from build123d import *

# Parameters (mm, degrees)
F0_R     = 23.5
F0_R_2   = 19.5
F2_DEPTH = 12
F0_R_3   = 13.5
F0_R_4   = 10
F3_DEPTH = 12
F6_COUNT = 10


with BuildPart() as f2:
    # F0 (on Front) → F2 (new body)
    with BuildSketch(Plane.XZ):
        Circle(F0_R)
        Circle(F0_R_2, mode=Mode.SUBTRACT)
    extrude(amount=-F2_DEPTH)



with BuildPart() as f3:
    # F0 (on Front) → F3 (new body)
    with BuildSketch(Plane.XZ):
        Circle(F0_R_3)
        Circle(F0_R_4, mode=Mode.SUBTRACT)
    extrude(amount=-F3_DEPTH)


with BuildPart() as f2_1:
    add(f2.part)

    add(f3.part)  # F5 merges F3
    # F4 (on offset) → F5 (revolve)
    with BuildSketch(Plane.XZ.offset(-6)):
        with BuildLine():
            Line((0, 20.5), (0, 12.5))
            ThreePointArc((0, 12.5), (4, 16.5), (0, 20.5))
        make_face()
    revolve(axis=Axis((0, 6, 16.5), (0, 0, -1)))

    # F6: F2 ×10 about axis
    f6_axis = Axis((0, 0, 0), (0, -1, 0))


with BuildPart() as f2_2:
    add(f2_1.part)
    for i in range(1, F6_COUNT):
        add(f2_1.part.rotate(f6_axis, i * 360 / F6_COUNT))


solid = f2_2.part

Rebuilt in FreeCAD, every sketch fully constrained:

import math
import FreeCAD as App
import Part
import Sketcher

doc = App.newDocument("Part")
params = doc.addObject("Spreadsheet::Sheet", "Params")
for row, (alias, value) in enumerate([
    ("sketch1_diameter", "47 mm"),
    ("sketch1_diameter2", "39 mm"),
    ("pad1_length", "12 mm"),
    ("sketch2_diameter", "27 mm"),
    ("sketch2_diameter2", "20 mm"),
    ("pad2_length", "12 mm"),
    ("sketch3_radius", "4 mm"),
    ("revolution_angle", "360 deg"),
], start=1):
    params.set(f"A{row}", alias)
    params.set(f"B{row}", "=" + value)
    params.setAlias(f"B{row}", alias)

body = doc.addObject("PartDesign::Body", "Body")

# Sketch on XZ plane
sketch1 = body.newObject("Sketcher::SketchObject", "Sketch")
sketch1.AttachmentSupport = (doc.getObject("XZ_Plane"), [""])
sketch1.MapMode = "FlatFace"
sketch1.addGeometry([
    Part.Circle(App.Vector(0, 0, 0), App.Vector(0, 0, 1), 24),
    Part.Circle(App.Vector(0, 0, 0), App.Vector(0, 0, 1), 20),
], False)
sketch1.addConstraint([
    Sketcher.Constraint("Coincident", 0, 3, -1, 1),
    Sketcher.Constraint("Coincident", 1, 3, -1, 1),
    Sketcher.Constraint("Diameter", 0, 47.0),
    Sketcher.Constraint("Diameter", 1, 39.0),
])
sketch1.setExpression("Constraints[2]", "Params.sketch1_diameter")
sketch1.setExpression("Constraints[3]", "Params.sketch1_diameter2")
pad1 = body.newObject("PartDesign::Pad", "Pad")
pad1.Profile = sketch1
pad1.setExpression("Length", "Params.pad1_length")
pad1.Reversed = True
body2 = doc.addObject("PartDesign::Body", "Body001")

# Sketch on XZ plane
sketch2 = body2.newObject("Sketcher::SketchObject", "Sketch001")
sketch2.AttachmentSupport = (doc.getObject("XZ_Plane001"), [""])
sketch2.MapMode = "FlatFace"
sketch2.addGeometry([
    Part.Circle(App.Vector(0, 0, 0), App.Vector(0, 0, 1), 14),
    Part.Circle(App.Vector(0, 0, 0), App.Vector(0, 0, 1), 10),
], False)
sketch2.addConstraint([
    Sketcher.Constraint("Coincident", 0, 3, -1, 1),
    Sketcher.Constraint("Coincident", 1, 3, -1, 1),
    Sketcher.Constraint("Diameter", 0, 27.0),
    Sketcher.Constraint("Diameter", 1, 20.0),
])
sketch2.setExpression("Constraints[2]", "Params.sketch2_diameter")
sketch2.setExpression("Constraints[3]", "Params.sketch2_diameter2")
pad2 = body2.newObject("PartDesign::Pad", "Pad001")
pad2.Profile = sketch2
pad2.setExpression("Length", "Params.pad2_length")
pad2.Reversed = True
body.AllowCompound = True
doc.recompute()

boolean = body.newObject("PartDesign::Boolean", "Boolean")
boolean.Type = "Fuse"
boolean.addObjects([body2])

# Sketch on XZ plane
sketch3 = body.newObject("Sketcher::SketchObject", "Sketch002")
sketch3.AttachmentSupport = (doc.getObject("XZ_Plane"), [""])
sketch3.MapMode = "FlatFace"
sketch3.AttachmentOffset = App.Placement(App.Vector(0, 0, -6), App.Rotation())
sketch3.addGeometry([
    Part.LineSegment(App.Vector(0, 20.5, 0), App.Vector(0, 12.5, 0)),
    Part.ArcOfCircle(Part.Circle(App.Vector(0, 16.5, 0), App.Vector(0, 0, 1), 4), math.radians(-90), math.radians(90)),
], False)
sketch3.addConstraint([
    Sketcher.Constraint("Coincident", 0, 1, 1, 2),
    Sketcher.Constraint("Coincident", 1, 1, 0, 2),
    Sketcher.Constraint("Vertical", 0),
    Sketcher.Constraint("PointOnObject", 1, 3, -2),
    Sketcher.Constraint("PointOnObject", 0, 1, -2),
    Sketcher.Constraint("Radius", 1, 4.0),
    Sketcher.Constraint("DistanceY", -1, 1, 1, 3, 16.5),
])
sketch3.setExpression("Constraints[5]", "Params.sketch3_radius")
revolution = body.newObject("PartDesign::Revolution", "Revolution")
revolution.Profile = sketch3
revolution.ReferenceAxis = (sketch3, ["V_Axis"])
revolution.setExpression("Angle", "Params.revolution_angle")
body3 = doc.addObject("PartDesign::Body", "Body002")
doc.recompute()

body3.BaseFeature = body
doc.recompute()

body4 = doc.addObject("PartDesign::Body", "Body003")
body4.BaseFeature = body
body4.Placement = App.Placement(App.Vector(0, 0, 0), App.Rotation(App.Vector(0, -1, 0), 36))
boolean2 = body3.newObject("PartDesign::Boolean", "Boolean001")
boolean2.Type = "Fuse"
boolean2.addObjects([body4])
doc.recompute()

body5 = doc.addObject("PartDesign::Body", "Body004")
body5.BaseFeature = body
body5.Placement = App.Placement(App.Vector(0, 0, 0), App.Rotation(App.Vector(0, -1, 0), 72))
boolean3 = body3.newObject("PartDesign::Boolean", "Boolean002")
boolean3.Type = "Fuse"
boolean3.addObjects([body5])
doc.recompute()

body6 = doc.addObject("PartDesign::Body", "Body005")
body6.BaseFeature = body
body6.Placement = App.Placement(App.Vector(0, 0, 0), App.Rotation(App.Vector(0, -1, 0), 108))
boolean4 = body3.newObject("PartDesign::Boolean", "Boolean003")
boolean4.Type = "Fuse"
boolean4.addObjects([body6])
doc.recompute()

body7 = doc.addObject("PartDesign::Body", "Body006")
body7.BaseFeature = body
body7.Placement = App.Placement(App.Vector(0, 0, 0), App.Rotation(App.Vector(0, -1, 0), 144))
boolean5 = body3.newObject("PartDesign::Boolean", "Boolean004")
boolean5.Type = "Fuse"
boolean5.addObjects([body7])
doc.recompute()

body8 = doc.addObject("PartDesign::Body", "Body007")
body8.BaseFeature = body
body8.Placement = App.Placement(App.Vector(0, 0, 0), App.Rotation(App.Vector(0, -1, 0), 180))
boolean6 = body3.newObject("PartDesign::Boolean", "Boolean005")
boolean6.Type = "Fuse"
boolean6.addObjects([body8])
doc.recompute()

body9 = doc.addObject("PartDesign::Body", "Body008")
body9.BaseFeature = body
body9.Placement = App.Placement(App.Vector(0, 0, 0), App.Rotation(App.Vector(0, -1, 0), 216))
boolean7 = body3.newObject("PartDesign::Boolean", "Boolean006")
boolean7.Type = "Fuse"
boolean7.addObjects([body9])
doc.recompute()

body10 = doc.addObject("PartDesign::Body", "Body009")
body10.BaseFeature = body
body10.Placement = App.Placement(App.Vector(0, 0, 0), App.Rotation(App.Vector(0, -1, 0), 252))
boolean8 = body3.newObject("PartDesign::Boolean", "Boolean007")
boolean8.Type = "Fuse"
boolean8.addObjects([body10])
doc.recompute()

body11 = doc.addObject("PartDesign::Body", "Body010")
body11.BaseFeature = body
body11.Placement = App.Placement(App.Vector(0, 0, 0), App.Rotation(App.Vector(0, -1, 0), 288))
boolean9 = body3.newObject("PartDesign::Boolean", "Boolean008")
boolean9.Type = "Fuse"
boolean9.addObjects([body11])
doc.recompute()

body.Placement = App.Placement(App.Vector(0, 0, 0), App.Rotation(App.Vector(0, -1, 0), 324))
boolean10 = body3.newObject("PartDesign::Boolean", "Boolean009")
boolean10.Type = "Fuse"
boolean10.addObjects([body])

doc.recompute()
